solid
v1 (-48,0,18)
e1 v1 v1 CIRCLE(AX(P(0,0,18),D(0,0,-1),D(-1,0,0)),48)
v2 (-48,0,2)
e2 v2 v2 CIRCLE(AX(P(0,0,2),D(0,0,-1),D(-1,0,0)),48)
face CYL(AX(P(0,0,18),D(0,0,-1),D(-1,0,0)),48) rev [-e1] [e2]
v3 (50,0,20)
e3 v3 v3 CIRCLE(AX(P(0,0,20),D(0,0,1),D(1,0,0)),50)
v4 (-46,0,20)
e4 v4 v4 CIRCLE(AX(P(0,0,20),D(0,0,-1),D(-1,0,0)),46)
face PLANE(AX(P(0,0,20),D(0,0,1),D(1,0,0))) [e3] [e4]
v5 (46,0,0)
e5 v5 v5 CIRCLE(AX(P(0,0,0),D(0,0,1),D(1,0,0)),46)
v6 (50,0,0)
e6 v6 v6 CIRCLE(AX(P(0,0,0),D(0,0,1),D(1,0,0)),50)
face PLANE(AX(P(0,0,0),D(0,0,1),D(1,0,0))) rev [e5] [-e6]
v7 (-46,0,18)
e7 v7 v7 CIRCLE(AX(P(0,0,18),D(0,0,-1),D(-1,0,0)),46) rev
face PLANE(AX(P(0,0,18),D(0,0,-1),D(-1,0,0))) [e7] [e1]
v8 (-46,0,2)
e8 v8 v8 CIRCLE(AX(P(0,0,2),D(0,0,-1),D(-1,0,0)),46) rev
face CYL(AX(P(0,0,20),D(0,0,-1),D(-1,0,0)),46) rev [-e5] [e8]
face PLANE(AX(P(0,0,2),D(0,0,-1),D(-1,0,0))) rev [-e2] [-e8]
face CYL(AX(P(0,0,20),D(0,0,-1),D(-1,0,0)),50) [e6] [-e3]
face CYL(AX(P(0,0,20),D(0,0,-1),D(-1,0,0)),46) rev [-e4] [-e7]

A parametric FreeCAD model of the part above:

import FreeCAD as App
import Part
import Sketcher

V = App.Vector

doc = App.newDocument("Part")
body = doc.addObject("PartDesign::Body", "Body")

# Sketch on XY plane
sketch1 = doc.addObject("Sketcher::SketchObject", "Sketch")
body.addObject(sketch1)
sketch1.AttachmentSupport = (doc.XY_Plane, [""])
sketch1.MapMode = "FlatFace"
sketch1.addGeometry(Part.Circle(V(0, 0, 0), V(0, 0, 1), 50), False)
sketch1.addConstraint([
    Sketcher.Constraint("Coincident", 0, 3, -1, 1),
    Sketcher.Constraint("Diameter", 0, 100.0),
])
pad1 = doc.addObject("PartDesign::Pad", "Pad")
body.addObject(pad1)
pad1.Profile = sketch1
pad1.Length = 20

# Sketch on XY plane
sketch2 = doc.addObject("Sketcher::SketchObject", "Sketch001")
body.addObject(sketch2)
sketch2.AttachmentSupport = (doc.XY_Plane, [""])
sketch2.MapMode = "FlatFace"
sketch2.addGeometry(Part.Circle(V(0, 0, 0), V(0, 0, 1), 46), False)
sketch2.addConstraint([
    Sketcher.Constraint("Coincident", 0, 3, -1, 1),
    Sketcher.Constraint("Diameter", 0, 92.0),
])
pocket1 = doc.addObject("PartDesign::Pocket", "Pocket")
body.addObject(pocket1)
pocket1.Profile = sketch2
pocket1.Type = "ThroughAll"
pocket1.Midplane = True

# Sketch on XY plane
sketch3 = doc.addObject("Sketcher::SketchObject", "Sketch002")
body.addObject(sketch3)
sketch3.AttachmentSupport = (doc.XY_Plane, [""])
sketch3.MapMode = "FlatFace"
sketch3.AttachmentOffset = App.Placement(V(0, 0, 10), App.Rotation())
sketch3.addGeometry(Part.Circle(V(0, 0, 0), V(0, 0, 1), 48), False)
sketch3.addConstraint([
    Sketcher.Constraint("Coincident", 0, 3, -1, 1),
    Sketcher.Constraint("Diameter", 0, 96.0),
])
pocket2 = doc.addObject("PartDesign::Pocket", "Pocket001")
body.addObject(pocket2)
pocket2.Profile = sketch3
pocket2.Length = 16
pocket2.Midplane = True

doc.recompute()
